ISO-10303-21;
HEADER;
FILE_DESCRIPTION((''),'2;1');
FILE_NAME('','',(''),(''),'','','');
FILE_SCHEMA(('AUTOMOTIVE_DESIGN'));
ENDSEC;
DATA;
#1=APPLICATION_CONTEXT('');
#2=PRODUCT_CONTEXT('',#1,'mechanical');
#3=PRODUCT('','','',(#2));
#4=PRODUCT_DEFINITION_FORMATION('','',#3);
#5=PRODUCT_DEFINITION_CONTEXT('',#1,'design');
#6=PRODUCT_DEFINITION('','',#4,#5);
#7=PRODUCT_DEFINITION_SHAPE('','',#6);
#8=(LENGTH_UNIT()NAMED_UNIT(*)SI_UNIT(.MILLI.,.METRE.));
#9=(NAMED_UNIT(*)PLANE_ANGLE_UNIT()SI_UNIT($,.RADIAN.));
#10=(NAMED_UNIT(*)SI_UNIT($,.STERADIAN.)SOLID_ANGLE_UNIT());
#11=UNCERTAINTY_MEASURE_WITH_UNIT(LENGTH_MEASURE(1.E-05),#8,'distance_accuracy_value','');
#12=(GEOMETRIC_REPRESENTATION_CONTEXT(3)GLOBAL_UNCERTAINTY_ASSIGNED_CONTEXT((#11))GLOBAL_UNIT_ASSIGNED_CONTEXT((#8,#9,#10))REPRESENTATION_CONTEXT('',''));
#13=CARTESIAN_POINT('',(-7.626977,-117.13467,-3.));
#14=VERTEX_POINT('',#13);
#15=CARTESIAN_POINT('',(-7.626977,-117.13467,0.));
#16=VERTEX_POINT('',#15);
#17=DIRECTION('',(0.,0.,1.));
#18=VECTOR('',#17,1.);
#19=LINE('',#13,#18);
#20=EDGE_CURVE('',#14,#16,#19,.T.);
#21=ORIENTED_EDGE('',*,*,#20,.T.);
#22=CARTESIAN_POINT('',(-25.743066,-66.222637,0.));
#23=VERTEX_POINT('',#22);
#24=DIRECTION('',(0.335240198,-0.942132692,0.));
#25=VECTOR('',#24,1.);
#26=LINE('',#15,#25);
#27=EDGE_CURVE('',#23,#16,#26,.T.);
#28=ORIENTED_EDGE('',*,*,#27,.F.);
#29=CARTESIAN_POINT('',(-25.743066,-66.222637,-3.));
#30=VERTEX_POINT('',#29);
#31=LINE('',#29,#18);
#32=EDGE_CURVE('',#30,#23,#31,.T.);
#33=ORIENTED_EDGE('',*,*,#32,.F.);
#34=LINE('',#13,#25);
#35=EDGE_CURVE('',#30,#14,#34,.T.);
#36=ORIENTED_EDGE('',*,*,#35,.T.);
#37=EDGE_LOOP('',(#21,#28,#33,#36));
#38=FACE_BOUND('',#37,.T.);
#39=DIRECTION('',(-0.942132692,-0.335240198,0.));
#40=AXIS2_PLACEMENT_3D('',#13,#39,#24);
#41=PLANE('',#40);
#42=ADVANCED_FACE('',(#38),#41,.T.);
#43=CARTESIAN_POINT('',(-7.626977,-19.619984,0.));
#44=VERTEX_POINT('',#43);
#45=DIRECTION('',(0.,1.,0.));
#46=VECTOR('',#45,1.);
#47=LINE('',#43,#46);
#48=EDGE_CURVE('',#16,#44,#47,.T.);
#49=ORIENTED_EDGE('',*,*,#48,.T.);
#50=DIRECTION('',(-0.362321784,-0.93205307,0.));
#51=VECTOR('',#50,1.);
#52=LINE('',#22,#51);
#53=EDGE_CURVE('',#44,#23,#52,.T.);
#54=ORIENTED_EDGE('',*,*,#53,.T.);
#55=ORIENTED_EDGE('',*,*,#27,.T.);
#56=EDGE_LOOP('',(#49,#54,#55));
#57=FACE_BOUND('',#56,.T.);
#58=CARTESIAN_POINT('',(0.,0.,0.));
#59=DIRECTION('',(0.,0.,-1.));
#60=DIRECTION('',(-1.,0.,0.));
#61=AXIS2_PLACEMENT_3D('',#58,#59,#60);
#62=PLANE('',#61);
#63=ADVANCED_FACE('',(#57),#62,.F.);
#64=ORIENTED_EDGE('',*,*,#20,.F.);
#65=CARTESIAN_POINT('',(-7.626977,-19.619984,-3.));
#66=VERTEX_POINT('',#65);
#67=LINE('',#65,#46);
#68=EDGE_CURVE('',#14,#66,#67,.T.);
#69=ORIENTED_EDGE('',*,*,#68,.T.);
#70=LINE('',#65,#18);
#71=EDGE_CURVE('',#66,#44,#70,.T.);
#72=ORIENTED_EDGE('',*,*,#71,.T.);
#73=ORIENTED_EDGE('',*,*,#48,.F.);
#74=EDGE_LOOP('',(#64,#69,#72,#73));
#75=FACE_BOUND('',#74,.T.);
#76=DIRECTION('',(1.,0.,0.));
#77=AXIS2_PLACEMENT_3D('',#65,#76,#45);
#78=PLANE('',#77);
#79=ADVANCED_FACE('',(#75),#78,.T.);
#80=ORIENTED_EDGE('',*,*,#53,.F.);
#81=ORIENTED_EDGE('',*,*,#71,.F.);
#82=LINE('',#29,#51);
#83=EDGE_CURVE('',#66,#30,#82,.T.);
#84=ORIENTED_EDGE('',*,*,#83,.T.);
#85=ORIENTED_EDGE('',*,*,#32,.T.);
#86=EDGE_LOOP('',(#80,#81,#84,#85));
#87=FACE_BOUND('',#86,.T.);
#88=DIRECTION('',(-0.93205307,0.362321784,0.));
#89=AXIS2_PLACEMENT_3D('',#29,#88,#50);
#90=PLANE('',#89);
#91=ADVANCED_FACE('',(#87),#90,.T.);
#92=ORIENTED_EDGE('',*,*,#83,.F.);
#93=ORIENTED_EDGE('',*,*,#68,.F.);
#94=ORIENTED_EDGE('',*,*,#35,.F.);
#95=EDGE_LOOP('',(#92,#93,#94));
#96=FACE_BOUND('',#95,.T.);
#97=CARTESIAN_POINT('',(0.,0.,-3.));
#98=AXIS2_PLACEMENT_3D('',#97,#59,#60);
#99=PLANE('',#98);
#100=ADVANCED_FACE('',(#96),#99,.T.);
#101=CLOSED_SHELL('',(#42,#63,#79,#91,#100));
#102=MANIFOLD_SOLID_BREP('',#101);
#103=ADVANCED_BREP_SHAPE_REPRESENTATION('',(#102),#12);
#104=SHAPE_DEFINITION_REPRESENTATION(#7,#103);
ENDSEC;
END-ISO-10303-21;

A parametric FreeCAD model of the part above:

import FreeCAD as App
import Part
import Sketcher
from FreeCAD import Vector
Q = App.Units.Quantity


def add_polygon(sketch, points):
    """Adds a closed chain of lines whose ends are joined by coincident constraints."""
    first, n = sketch.GeometryCount, len(points)
    for a, b in zip(points, points[1:] + points[:1]):
        sketch.addGeometry(Part.LineSegment(App.Vector(*a, 0), App.Vector(*b, 0)), False)
    for i in range(n):
        sketch.addConstraint(Sketcher.Constraint("Coincident", first + i, 2, first + (i + 1) % n, 1))

doc = App.newDocument("Part")
params = doc.addObject("Spreadsheet::Sheet", "Params")
for row, (alias, value) in enumerate([
    ("sketch1_length", "50 mm"),
    ("pad1_length", "3 mm"),
], start=1):
    params.set(f"A{row}", alias)
    params.set(f"B{row}", "=" + value)
    params.setAlias(f"B{row}", alias)

body = doc.addObject("PartDesign::Body", "Body")

sketch1 = doc.addObject("Sketcher::SketchObject", "Sketch")
body.addObject(sketch1)
sketch1.AttachmentSupport = (doc.XY_Plane, [""])
sketch1.MapMode = "FlatFace"
add_polygon(sketch1, [(-7.626977, -19.619984), (-25.743066, -66.222637), (-7.626977, -117.13467)])
sketch1.addConstraint(Sketcher.Constraint("Vertical", 2))
sketch1.addConstraint(Sketcher.Constraint("Distance", 0, Q("50 mm")))
sketch1.addConstraint(Sketcher.Constraint("Distance", 1, Q("54.039132 mm")))
sketch1.addConstraint(Sketcher.Constraint("DistanceY", 2, 1, 2, 2, Q("97.514686 mm")))
sketch1.addConstraint(Sketcher.Constraint("DistanceY", 1, 2, -1, 1, Q("117.13467 mm")))
sketch1.addConstraint(Sketcher.Constraint("DistanceX", 0, 2, -1, 1, Q("25.743066 mm")))
sketch1.setExpression("Constraints[4]", "Params.sketch1_length")
pad1 = doc.addObject("PartDesign::Pad", "Pad")
body.addObject(pad1)
pad1.Profile = sketch1
pad1.setExpression("Length", "Params.pad1_length")
pad1.Reversed = True

doc.recompute()
